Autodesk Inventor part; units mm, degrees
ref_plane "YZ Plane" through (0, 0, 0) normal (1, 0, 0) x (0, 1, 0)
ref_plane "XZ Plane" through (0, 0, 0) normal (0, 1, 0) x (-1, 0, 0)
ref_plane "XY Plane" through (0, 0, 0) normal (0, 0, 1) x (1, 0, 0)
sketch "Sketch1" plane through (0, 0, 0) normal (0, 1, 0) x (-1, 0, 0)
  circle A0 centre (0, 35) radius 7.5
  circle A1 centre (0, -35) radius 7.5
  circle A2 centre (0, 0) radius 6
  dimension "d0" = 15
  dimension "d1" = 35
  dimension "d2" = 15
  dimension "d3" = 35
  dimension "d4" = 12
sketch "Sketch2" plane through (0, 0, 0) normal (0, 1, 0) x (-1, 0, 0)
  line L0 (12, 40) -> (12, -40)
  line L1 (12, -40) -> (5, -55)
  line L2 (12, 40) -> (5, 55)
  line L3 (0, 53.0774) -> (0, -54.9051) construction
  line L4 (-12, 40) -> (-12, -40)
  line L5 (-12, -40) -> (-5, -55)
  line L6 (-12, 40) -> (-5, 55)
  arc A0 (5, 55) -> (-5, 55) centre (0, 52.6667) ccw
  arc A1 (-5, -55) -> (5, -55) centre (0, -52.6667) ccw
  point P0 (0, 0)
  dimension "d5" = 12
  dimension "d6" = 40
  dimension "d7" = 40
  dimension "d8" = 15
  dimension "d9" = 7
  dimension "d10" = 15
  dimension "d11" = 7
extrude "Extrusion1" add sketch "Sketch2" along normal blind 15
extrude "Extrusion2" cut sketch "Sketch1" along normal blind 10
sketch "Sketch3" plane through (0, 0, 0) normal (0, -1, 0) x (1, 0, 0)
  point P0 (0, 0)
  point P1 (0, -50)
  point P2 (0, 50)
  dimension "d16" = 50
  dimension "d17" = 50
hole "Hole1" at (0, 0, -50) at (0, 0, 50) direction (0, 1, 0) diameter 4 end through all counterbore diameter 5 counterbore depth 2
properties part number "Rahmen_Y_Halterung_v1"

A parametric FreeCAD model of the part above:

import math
import FreeCAD as App
import Part
import Sketcher
Q = App.Units.Quantity

doc = App.newDocument("Part")
body = doc.addObject("PartDesign::Body", "Body")

# Sketch on XZ plane
sketch1 = body.newObject("Sketcher::SketchObject", "Sketch")
sketch1.AttachmentSupport = (doc.getObject("XZ_Plane"), [""])
sketch1.MapMode = "FlatFace"
sketch1.addGeometry([
    Part.LineSegment(App.Vector(-12, -40, 0), App.Vector(-12, 40, 0)),  # 0
    Part.LineSegment(App.Vector(-12, 40, 0), App.Vector(-5, 55, 0)),  # 1
    Part.ArcOfCircle(Part.Circle(App.Vector(0, 53, 0), App.Vector(0, 0, 1), 6), math.radians(25), math.radians(155)),  # 2
    Part.LineSegment(App.Vector(5, 55, 0), App.Vector(12, 40, 0)),  # 3
    Part.LineSegment(App.Vector(12, 40, 0), App.Vector(12, -40, 0)),  # 4
    Part.LineSegment(App.Vector(12, -40, 0), App.Vector(5, -55, 0)),  # 5
    Part.ArcOfCircle(Part.Circle(App.Vector(0, -53, 0), App.Vector(0, 0, 1), 6), math.radians(-155), math.radians(-25)),  # 6
    Part.LineSegment(App.Vector(-5, -55, 0), App.Vector(-12, -40, 0)),  # 7
], False)
sketch1.addConstraint([
    Sketcher.Constraint("Coincident", 0, 2, 1, 1),
    Sketcher.Constraint("Tangent", 1, 2, 2, 2),
    Sketcher.Constraint("Tangent", 2, 1, 3, 1),
    Sketcher.Constraint("Coincident", 3, 2, 4, 1),
    Sketcher.Constraint("Coincident", 4, 2, 5, 1),
    Sketcher.Constraint("Tangent", 5, 2, 6, 2),
    Sketcher.Constraint("Tangent", 6, 1, 7, 1),
    Sketcher.Constraint("Coincident", 7, 2, 0, 1),
    Sketcher.Constraint("Vertical", 0),
    Sketcher.Constraint("Vertical", 4),
    Sketcher.Constraint("Equal", 2, 6),
    Sketcher.Constraint("Symmetric", 2, 3, 6, 3, -1, 1),
    Sketcher.Constraint("Symmetric", 0, 2, 4, 2, -1, 1),
    Sketcher.Constraint("Symmetric", 1, 2, 2, 1, -2),
    Sketcher.Constraint("Parallel", 3, 7),
    Sketcher.Constraint("DistanceX", 0, 2, -1, 1, Q("12 mm")),
    Sketcher.Constraint("DistanceY", -1, 1, 0, 2, Q("40 mm")),
    Sketcher.Constraint("DistanceX", 0, 2, 1, 2, Q("7 mm")),
    Sketcher.Constraint("DistanceY", 0, 2, 1, 2, Q("15 mm")),
])
pad1 = body.newObject("PartDesign::Pad", "Pad")
pad1.Profile = sketch1
pad1.Length = 15
pad1.Reversed = True

# Sketch on XZ plane
sketch2 = body.newObject("Sketcher::SketchObject", "Sketch001")
sketch2.AttachmentSupport = (doc.getObject("XZ_Plane"), [""])
sketch2.MapMode = "FlatFace"
sketch2.addGeometry([
    Part.Circle(App.Vector(0, 35, 0), App.Vector(0, 0, 1), 8),
    Part.Circle(App.Vector(0, -35, 0), App.Vector(0, 0, 1), 8),
    Part.Circle(App.Vector(0, 0, 0), App.Vector(0, 0, 1), 6),
], False)
sketch2.addConstraint([
    Sketcher.Constraint("Coincident", 2, 3, -1, 1),
    Sketcher.Constraint("Equal", 0, 1),
    Sketcher.Constraint("Symmetric", 0, 3, 1, 3, -1, 1),
    Sketcher.Constraint("PointOnObject", 0, 3, -2),
    Sketcher.Constraint("Diameter", 0, Q("15 mm")),
    Sketcher.Constraint("Diameter", 2, Q("12 mm")),
    Sketcher.Constraint("DistanceY", -1, 1, 0, 3, Q("35 mm")),
])
pocket1 = body.newObject("PartDesign::Pocket", "Pocket")
pocket1.Profile = sketch2
pocket1.Length = 10

# Sketch on XZ plane
sketch3 = body.newObject("Sketcher::SketchObject", "Sketch002")
sketch3.AttachmentSupport = (doc.getObject("XZ_Plane"), [""])
sketch3.MapMode = "FlatFace"
sketch3.addGeometry([
    Part.Circle(App.Vector(0, -50, 0), App.Vector(0, 0, 1), 2),
    Part.Circle(App.Vector(0, 50, 0), App.Vector(0, 0, 1), 2),
], False)
sketch3.addConstraint([
    Sketcher.Constraint("Equal", 0, 1),
    Sketcher.Constraint("Symmetric", 0, 3, 1, 3, -1, 1),
    Sketcher.Constraint("PointOnObject", 0, 3, -2),
    Sketcher.Constraint("Diameter", 0, Q("4 mm")),
    Sketcher.Constraint("DistanceY", 0, 3, -1, 1, Q("50 mm")),
])
doc.recompute()
hole = body.newObject("PartDesign::Hole", "Hole")
hole.Profile = sketch3
hole.ThreadType = "None"
hole.Diameter = 4
hole.DepthType = "ThroughAll"
hole.HoleCutType = "Counterbore"
hole.HoleCutDiameter = 5
hole.HoleCutDepth = 2

doc.recompute()
